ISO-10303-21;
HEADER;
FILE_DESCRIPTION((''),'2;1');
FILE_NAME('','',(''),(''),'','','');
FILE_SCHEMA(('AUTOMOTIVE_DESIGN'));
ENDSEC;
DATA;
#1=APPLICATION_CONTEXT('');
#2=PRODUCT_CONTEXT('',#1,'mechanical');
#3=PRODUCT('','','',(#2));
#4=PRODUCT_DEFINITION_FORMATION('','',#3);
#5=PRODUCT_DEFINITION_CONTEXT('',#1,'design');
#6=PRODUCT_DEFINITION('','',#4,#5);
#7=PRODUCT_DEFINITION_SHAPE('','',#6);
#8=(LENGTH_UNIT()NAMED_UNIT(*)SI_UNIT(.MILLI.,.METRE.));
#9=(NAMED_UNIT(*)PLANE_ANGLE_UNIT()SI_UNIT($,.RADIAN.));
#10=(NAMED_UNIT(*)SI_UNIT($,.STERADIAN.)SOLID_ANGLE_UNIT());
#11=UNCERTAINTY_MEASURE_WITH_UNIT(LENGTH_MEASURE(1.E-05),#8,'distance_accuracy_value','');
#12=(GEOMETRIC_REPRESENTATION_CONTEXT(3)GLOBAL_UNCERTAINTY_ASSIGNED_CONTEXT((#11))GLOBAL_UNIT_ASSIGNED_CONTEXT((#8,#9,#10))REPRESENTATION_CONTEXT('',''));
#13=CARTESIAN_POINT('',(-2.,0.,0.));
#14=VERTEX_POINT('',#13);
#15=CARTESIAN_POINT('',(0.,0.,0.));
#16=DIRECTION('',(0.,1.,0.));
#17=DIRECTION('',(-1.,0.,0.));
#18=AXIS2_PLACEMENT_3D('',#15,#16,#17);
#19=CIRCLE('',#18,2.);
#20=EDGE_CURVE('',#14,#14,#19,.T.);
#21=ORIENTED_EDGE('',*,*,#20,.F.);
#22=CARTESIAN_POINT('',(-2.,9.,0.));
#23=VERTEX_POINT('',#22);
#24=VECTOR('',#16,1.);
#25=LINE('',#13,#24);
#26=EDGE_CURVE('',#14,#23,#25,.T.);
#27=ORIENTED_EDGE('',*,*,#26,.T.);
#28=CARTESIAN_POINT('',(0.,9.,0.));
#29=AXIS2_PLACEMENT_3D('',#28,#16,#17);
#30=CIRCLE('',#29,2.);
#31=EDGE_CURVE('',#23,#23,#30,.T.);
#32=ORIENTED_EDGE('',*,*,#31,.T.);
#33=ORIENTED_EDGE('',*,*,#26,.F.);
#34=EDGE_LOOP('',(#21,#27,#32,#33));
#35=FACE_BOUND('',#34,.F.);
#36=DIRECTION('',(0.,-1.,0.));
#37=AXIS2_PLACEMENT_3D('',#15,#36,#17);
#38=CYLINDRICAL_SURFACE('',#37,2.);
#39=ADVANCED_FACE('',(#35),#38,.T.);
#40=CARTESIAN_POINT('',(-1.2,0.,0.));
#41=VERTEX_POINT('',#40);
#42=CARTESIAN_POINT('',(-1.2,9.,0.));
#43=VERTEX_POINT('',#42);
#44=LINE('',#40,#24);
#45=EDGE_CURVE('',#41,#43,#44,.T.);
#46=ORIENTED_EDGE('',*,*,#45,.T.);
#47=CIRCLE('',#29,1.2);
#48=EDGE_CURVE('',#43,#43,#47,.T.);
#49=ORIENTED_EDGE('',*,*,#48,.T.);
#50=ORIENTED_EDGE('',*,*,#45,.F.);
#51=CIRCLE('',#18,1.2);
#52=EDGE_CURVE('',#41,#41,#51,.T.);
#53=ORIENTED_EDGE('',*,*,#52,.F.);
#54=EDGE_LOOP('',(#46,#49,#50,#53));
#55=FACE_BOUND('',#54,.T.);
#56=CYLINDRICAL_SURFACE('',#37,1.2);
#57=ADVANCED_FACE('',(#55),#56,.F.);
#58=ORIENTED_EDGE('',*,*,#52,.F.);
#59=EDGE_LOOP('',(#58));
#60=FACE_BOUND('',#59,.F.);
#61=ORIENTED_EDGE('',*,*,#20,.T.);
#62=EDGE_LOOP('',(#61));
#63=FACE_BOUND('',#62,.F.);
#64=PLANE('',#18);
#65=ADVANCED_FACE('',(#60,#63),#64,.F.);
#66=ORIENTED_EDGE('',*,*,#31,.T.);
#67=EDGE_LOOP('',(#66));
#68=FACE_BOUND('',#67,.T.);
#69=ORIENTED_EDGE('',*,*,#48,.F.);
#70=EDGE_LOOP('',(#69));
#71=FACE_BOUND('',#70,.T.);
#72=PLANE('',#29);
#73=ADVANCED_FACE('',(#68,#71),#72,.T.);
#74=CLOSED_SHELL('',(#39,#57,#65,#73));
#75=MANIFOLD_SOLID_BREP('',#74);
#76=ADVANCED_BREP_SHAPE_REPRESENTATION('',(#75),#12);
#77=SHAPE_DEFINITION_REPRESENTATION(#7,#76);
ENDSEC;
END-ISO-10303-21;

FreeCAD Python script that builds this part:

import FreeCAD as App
import Part
import Sketcher
Q = App.Units.Quantity

doc = App.newDocument("Part")
body = doc.addObject("PartDesign::Body", "Body")

# Sketch on XZ plane
sketch1 = body.newObject("Sketcher::SketchObject", "Sketch")
sketch1.AttachmentSupport = (doc.getObject("XZ_Plane"), [""])
sketch1.MapMode = "FlatFace"
sketch1.addGeometry([
    Part.Circle(App.Vector(0, 0, 0), App.Vector(0, 0, 1), 2),
    Part.Circle(App.Vector(0, 0, 0), App.Vector(0, 0, 1), 1.2),
], False)
sketch1.addConstraint([
    Sketcher.Constraint("Coincident", 0, 3, -1, 1),
    Sketcher.Constraint("Coincident", 1, 3, -1, 1),
    Sketcher.Constraint("Diameter", 0, Q("4 mm")),
    Sketcher.Constraint("Diameter", 1, Q("2.4 mm")),
])
pad1 = body.newObject("PartDesign::Pad", "Pad")
pad1.Profile = sketch1
pad1.Length = 9
pad1.Reversed = True

doc.recompute()
